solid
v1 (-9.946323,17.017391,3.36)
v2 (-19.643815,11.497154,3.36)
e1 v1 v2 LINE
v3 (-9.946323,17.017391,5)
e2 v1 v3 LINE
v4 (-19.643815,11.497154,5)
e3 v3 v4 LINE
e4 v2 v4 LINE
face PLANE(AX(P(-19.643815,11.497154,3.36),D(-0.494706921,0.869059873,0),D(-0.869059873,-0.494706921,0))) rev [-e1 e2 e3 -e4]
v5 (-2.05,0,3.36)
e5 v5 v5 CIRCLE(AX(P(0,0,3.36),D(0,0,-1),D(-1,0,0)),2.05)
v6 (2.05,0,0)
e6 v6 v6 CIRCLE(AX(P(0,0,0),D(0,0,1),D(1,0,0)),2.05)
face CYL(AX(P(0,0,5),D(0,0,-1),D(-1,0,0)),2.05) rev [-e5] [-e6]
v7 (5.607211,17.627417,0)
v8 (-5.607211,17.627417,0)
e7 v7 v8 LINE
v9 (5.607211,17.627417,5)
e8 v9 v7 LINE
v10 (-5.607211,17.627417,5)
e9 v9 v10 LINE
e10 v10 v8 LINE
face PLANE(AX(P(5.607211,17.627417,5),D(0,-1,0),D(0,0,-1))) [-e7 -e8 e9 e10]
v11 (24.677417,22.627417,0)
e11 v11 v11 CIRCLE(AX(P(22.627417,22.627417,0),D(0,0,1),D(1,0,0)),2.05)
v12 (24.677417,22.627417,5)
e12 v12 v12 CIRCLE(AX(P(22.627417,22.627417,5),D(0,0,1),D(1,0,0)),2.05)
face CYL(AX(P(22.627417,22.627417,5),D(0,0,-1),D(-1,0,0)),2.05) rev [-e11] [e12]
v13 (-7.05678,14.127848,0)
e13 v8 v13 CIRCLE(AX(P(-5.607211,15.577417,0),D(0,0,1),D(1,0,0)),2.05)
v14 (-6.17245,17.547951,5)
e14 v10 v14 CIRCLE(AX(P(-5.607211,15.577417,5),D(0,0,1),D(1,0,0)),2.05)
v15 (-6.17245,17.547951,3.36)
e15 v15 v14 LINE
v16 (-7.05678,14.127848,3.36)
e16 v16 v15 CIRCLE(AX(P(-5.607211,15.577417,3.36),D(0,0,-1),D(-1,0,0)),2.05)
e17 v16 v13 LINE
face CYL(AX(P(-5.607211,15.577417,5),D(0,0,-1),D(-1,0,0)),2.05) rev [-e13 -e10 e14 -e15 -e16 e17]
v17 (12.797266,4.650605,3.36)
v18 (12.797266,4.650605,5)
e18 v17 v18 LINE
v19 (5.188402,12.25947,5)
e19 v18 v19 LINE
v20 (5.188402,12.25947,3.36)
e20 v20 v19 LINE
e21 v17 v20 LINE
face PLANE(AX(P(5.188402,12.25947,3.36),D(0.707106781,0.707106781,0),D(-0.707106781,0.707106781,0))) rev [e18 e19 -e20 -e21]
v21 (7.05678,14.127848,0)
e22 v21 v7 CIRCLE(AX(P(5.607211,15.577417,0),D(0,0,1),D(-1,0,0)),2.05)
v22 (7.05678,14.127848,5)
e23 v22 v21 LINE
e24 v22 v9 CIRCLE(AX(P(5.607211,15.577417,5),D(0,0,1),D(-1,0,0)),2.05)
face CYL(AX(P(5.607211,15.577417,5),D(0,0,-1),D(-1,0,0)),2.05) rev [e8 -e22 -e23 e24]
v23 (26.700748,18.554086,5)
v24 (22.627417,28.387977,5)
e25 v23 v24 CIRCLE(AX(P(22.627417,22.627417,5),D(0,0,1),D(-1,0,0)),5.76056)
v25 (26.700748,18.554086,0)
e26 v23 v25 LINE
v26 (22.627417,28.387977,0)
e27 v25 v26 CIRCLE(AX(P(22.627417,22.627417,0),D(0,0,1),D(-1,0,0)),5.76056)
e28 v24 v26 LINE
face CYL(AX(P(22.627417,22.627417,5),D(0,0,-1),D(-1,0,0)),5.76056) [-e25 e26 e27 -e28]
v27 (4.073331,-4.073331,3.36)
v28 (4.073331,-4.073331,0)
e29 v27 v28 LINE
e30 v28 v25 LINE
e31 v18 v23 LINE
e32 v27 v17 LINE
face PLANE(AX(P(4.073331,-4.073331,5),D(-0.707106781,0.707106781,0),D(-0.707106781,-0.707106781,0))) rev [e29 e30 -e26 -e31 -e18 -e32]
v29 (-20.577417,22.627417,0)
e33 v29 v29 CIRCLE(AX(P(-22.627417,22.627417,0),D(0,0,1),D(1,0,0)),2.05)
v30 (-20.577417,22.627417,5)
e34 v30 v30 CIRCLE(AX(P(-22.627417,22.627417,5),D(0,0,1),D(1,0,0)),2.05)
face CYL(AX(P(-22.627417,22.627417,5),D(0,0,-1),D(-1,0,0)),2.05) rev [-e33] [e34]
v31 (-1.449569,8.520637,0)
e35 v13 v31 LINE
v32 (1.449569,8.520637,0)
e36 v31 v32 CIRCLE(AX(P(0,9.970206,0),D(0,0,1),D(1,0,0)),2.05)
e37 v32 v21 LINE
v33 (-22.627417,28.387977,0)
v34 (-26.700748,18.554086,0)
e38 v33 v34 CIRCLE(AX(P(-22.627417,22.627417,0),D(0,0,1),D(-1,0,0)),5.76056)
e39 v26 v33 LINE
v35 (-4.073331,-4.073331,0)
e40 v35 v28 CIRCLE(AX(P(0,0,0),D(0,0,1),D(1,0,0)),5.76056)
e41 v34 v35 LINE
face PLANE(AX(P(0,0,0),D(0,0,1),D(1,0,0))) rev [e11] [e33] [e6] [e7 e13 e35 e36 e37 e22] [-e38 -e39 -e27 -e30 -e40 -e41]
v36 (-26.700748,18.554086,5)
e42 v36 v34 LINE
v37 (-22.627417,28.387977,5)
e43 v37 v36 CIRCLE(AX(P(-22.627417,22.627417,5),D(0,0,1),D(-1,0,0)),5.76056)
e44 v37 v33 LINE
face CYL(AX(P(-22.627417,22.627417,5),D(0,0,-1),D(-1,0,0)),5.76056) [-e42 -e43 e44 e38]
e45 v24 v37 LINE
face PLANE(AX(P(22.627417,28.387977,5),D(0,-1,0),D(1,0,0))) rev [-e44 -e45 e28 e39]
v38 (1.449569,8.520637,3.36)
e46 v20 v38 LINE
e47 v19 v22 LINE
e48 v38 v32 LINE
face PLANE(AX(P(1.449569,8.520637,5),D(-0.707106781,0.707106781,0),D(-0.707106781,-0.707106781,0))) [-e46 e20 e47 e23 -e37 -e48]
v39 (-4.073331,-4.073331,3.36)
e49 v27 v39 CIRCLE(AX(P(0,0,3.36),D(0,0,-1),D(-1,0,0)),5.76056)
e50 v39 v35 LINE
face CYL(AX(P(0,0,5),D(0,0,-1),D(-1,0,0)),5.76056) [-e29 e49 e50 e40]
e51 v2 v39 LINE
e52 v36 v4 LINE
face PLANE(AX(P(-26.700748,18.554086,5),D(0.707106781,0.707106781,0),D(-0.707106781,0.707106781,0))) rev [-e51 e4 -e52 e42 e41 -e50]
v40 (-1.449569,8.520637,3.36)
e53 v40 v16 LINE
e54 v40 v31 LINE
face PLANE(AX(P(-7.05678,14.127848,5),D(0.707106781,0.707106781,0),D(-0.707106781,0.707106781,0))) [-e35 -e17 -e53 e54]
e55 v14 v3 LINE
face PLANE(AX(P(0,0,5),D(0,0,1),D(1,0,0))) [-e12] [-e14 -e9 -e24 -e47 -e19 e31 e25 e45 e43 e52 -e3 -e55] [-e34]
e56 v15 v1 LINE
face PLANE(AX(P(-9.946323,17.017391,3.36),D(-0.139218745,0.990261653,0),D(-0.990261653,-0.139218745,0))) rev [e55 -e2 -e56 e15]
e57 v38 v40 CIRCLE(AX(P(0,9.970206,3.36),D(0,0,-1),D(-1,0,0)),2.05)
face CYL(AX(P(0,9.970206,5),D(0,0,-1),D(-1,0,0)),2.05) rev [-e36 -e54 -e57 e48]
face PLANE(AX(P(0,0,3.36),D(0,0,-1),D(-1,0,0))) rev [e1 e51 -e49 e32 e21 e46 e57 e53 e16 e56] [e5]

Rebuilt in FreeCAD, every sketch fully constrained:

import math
import FreeCAD as App
import Part
import Sketcher

V = App.Vector
Q = App.Units.Quantity

doc = App.newDocument("Part")
body = doc.addObject("PartDesign::Body", "Body")

sketch1 = doc.addObject("Sketcher::SketchObject", "Sketch")
body.addObject(sketch1)
sketch1.AttachmentSupport = (doc.XY_Plane, [""])
sketch1.MapMode = "FlatFace"
sketch1.addGeometry([
    Part.LineSegment(V(22.6, 28.4, 0), V(-22.6, 28.4, 0)),
    Part.ArcOfCircle(Part.Circle(V(-22.6, 22.6, 0), V(0, 0, 1), 5.8), math.radians(90), math.radians(225)),
    Part.LineSegment(V(-26.7, 18.6, 0), V(-4.1, -4.1, 0)),
    Part.ArcOfCircle(Part.Circle(V(0, 0, 0), V(0, 0, 1), 5.8), math.radians(-135), math.radians(-45)),
    Part.LineSegment(V(4.1, -4.1, 0), V(26.7, 18.6, 0)),
    Part.ArcOfCircle(Part.Circle(V(22.6, 22.6, 0), V(0, 0, 1), 5.8), math.radians(-45), math.radians(90)),
    Part.Circle(V(0, 0, 0), V(0, 0, 1), 2),
    Part.Circle(V(-22.6, 22.6, 0), V(0, 0, 1), 2),
    Part.LineSegment(V(-5.6, 17.6, 0), V(5.6, 17.6, 0)),
    Part.ArcOfCircle(Part.Circle(V(5.6, 15.6, 0), V(0, 0, 1), 2), math.radians(-45), math.radians(90)),
    Part.LineSegment(V(7.1, 14.1, 0), V(1.4, 8.5, 0)),
    Part.ArcOfCircle(Part.Circle(V(0, 10, 0), V(0, 0, 1), 2), math.radians(-135), math.radians(-45)),
    Part.LineSegment(V(-1.4, 8.5, 0), V(-7.1, 14.1, 0)),
    Part.ArcOfCircle(Part.Circle(V(-5.6, 15.6, 0), V(0, 0, 1), 2), math.radians(90), math.radians(225)),
    Part.Circle(V(22.6, 22.6, 0), V(0, 0, 1), 2),
], False)
sketch1.addConstraint([
    Sketcher.Constraint("Tangent", 0, 2, 1, 1),
    Sketcher.Constraint("Tangent", 1, 2, 2, 1),
    Sketcher.Constraint("Tangent", 2, 2, 3, 1),
    Sketcher.Constraint("Tangent", 3, 2, 4, 1),
    Sketcher.Constraint("Tangent", 4, 2, 5, 1),
    Sketcher.Constraint("Tangent", 5, 2, 0, 1),
    Sketcher.Constraint("Tangent", 8, 2, 9, 2),
    Sketcher.Constraint("Tangent", 9, 1, 10, 1),
    Sketcher.Constraint("Tangent", 10, 2, 11, 2),
    Sketcher.Constraint("Tangent", 11, 1, 12, 1),
    Sketcher.Constraint("Tangent", 12, 2, 13, 2),
    Sketcher.Constraint("Tangent", 13, 1, 8, 1),
    Sketcher.Constraint("Horizontal", 0),
    Sketcher.Constraint("Horizontal", 8),
    Sketcher.Constraint("Coincident", 3, 3, -1, 1),
    Sketcher.Constraint("Coincident", 6, 3, -1, 1),
    Sketcher.Constraint("Coincident", 7, 3, 1, 3),
    Sketcher.Constraint("Coincident", 14, 3, 5, 3),
    Sketcher.Constraint("Equal", 1, 3),
    Sketcher.Constraint("Equal", 3, 5),
    Sketcher.Constraint("Equal", 6, 7),
    Sketcher.Constraint("Equal", 7, 9),
    Sketcher.Constraint("Equal", 9, 11),
    Sketcher.Constraint("Equal", 11, 13),
    Sketcher.Constraint("Equal", 13, 14),
    Sketcher.Constraint("Symmetric", 10, 2, 11, 1, -2),
    Sketcher.Constraint("Perpendicular", 2, 4),
    Sketcher.Constraint("Parallel", 4, 10),
    Sketcher.Constraint("Perpendicular", 10, 12),
    Sketcher.Constraint("Diameter", 6, 4.1),
    Sketcher.Constraint("Distance", 2, 32.0),
    Sketcher.Constraint("DistanceY", 8, 2, 5, 3, 5.0),
    Sketcher.Constraint("Radius", 1, 5.76056),
    Sketcher.Constraint("DistanceX", 8, 1, 8, 2, 11.214423),
])
pad1 = doc.addObject("PartDesign::Pad", "Pad")
body.addObject(pad1)
pad1.Profile = sketch1
pad1.Length = 5

sketch2 = doc.addObject("Sketcher::SketchObject", "Sketch001")
body.addObject(sketch2)
sketch2.AttachmentSupport = (doc.XY_Plane, [""])
sketch2.MapMode = "FlatFace"
sketch2.AttachmentOffset = App.Placement(V(0, 0, 5), App.Rotation())
sketch2.addGeometry([
    Part.LineSegment(V(0, -8.1, 0), V(12.8, 4.7, 0)),
    Part.LineSegment(V(12.8, 4.7, 0), V(5.2, 12.3, 0)),
    Part.LineSegment(V(5.2, 12.3, 0), V(1.4, 8.5, 0)),
    Part.LineSegment(V(1.4, 8.5, 0), V(-1.4, 8.5, 0)),
    Part.LineSegment(V(-1.4, 8.5, 0), V(-5.6, 17.6, 0)),
    Part.LineSegment(V(-5.6, 17.6, 0), V(-9.9, 17, 0)),
    Part.LineSegment(V(-9.9, 17, 0), V(-19.6, 11.5, 0)),
    Part.LineSegment(V(-19.6, 11.5, 0), V(0, -8.1, 0)),
], False)
sketch2.addConstraint([
    Sketcher.Constraint("Coincident", 0, 2, 1, 1),
    Sketcher.Constraint("Coincident", 1, 2, 2, 1),
    Sketcher.Constraint("Coincident", 2, 2, 3, 1),
    Sketcher.Constraint("Coincident", 3, 2, 4, 1),
    Sketcher.Constraint("Coincident", 4, 2, 5, 1),
    Sketcher.Constraint("Coincident", 5, 2, 6, 1),
    Sketcher.Constraint("Coincident", 6, 2, 7, 1),
    Sketcher.Constraint("Coincident", 7, 2, 0, 1),
    Sketcher.Constraint("Horizontal", 3),
    Sketcher.Constraint("PointOnObject", 7, 2, -2),
    Sketcher.Constraint("Perpendicular", 0, 1),
    Sketcher.Constraint("Perpendicular", 1, 2),
    Sketcher.Constraint("Perpendicular", 2, 7),
    Sketcher.Constraint("Angle", 0, Q("45 deg")),
    Sketcher.Constraint("Distance", 6, 11.158601),
    Sketcher.Constraint("DistanceX", -1, 1, 1, 2, 5.188402),
    Sketcher.Constraint("DistanceY", 7, 2, 2, 2, 16.667298),
    Sketcher.Constraint("Distance", 1, 10.76056),
    Sketcher.Constraint("Distance", 7, 27.78055),
    Sketcher.Constraint("DistanceX", 3, 2, 3, 1, 2.899138),
    Sketcher.Constraint("DistanceY", -1, 1, 1, 2, 12.25947),
    Sketcher.Constraint("DistanceX", 4, 2, -1, 1, 5.607211),
    Sketcher.Constraint("DistanceY", -1, 1, 5, 2, 17.017391),
    Sketcher.Constraint("DistanceY", 3, 2, 4, 2, 9.10678),
])
pocket1 = doc.addObject("PartDesign::Pocket", "Pocket")
body.addObject(pocket1)
pocket1.Profile = sketch2
pocket1.Length = 1.64

doc.recompute()
